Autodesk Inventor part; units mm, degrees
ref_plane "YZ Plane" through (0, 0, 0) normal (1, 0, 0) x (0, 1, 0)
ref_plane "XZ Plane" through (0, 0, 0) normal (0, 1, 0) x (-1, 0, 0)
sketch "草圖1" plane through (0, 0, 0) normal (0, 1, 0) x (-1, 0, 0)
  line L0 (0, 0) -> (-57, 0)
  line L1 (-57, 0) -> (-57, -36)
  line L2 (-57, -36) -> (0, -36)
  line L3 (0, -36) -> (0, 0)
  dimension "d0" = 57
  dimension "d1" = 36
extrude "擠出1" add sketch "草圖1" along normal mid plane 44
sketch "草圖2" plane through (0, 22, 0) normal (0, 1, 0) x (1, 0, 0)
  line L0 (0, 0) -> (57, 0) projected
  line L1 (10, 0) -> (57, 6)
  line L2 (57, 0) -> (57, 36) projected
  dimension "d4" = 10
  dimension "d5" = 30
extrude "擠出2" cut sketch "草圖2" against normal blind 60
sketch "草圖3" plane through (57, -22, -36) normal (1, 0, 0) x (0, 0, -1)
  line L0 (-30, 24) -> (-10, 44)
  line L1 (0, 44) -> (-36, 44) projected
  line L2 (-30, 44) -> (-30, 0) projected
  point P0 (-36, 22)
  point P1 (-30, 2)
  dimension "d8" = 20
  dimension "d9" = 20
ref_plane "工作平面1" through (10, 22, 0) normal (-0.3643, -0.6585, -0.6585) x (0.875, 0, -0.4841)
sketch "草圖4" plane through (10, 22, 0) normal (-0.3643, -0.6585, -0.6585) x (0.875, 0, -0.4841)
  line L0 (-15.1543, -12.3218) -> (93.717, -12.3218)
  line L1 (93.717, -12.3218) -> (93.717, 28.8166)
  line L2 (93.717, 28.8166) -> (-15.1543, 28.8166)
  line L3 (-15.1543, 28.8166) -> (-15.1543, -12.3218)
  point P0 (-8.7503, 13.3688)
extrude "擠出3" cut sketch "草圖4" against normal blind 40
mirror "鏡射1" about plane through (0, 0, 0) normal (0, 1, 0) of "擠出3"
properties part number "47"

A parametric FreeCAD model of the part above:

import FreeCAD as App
import Part
import Sketcher
from FreeCAD import Vector

doc = App.newDocument("Part")
body = doc.addObject("PartDesign::Body", "Body")

# Sketch on XZ plane
sketch1 = body.newObject("Sketcher::SketchObject", "Sketch")
sketch1.AttachmentSupport = (doc.getObject("XZ_Plane"), [""])
sketch1.MapMode = "FlatFace"
sketch1.addGeometry(Part.LineSegment(Vector(0, -36, 0), Vector(0, 0, 0)), False)
sketch1.addGeometry(Part.LineSegment(Vector(0, 0, 0), Vector(57, 0, 0)), False)
sketch1.addGeometry(Part.LineSegment(Vector(57, 0, 0), Vector(57, -36, 0)), False)
sketch1.addGeometry(Part.LineSegment(Vector(57, -36, 0), Vector(0, -36, 0)), False)
sketch1.addConstraint(Sketcher.Constraint("Coincident", 0, 2, 1, 1))
sketch1.addConstraint(Sketcher.Constraint("Coincident", 1, 2, 2, 1))
sketch1.addConstraint(Sketcher.Constraint("Coincident", 2, 2, 3, 1))
sketch1.addConstraint(Sketcher.Constraint("Coincident", 3, 2, 0, 1))
sketch1.addConstraint(Sketcher.Constraint("Vertical", 0))
sketch1.addConstraint(Sketcher.Constraint("Horizontal", 1))
sketch1.addConstraint(Sketcher.Constraint("Vertical", 2))
sketch1.addConstraint(Sketcher.Constraint("Horizontal", 3))
sketch1.addConstraint(Sketcher.Constraint("Coincident", 0, 2, -1, 1))
sketch1.addConstraint(Sketcher.Constraint("DistanceX", 1, 1, 1, 2, 57.0))
sketch1.addConstraint(Sketcher.Constraint("DistanceY", 0, 1, 0, 2, 36.0))
pad1 = body.newObject("PartDesign::Pad", "Pad")
pad1.Profile = sketch1
pad1.Length = 44
pad1.Midplane = True

# Sketch on XZ plane
sketch2 = body.newObject("Sketcher::SketchObject", "Sketch001")
sketch2.AttachmentSupport = (doc.getObject("XZ_Plane"), [""])
sketch2.MapMode = "FlatFace"
sketch2.AttachmentOffset = App.Placement(Vector(0, 0, -22), App.Rotation())
sketch2.addGeometry(Part.LineSegment(Vector(57, -6, 0), Vector(10, 0, 0)), False)
sketch2.addGeometry(Part.LineSegment(Vector(10, 0, 0), Vector(57, 0, 0)), False)
sketch2.addGeometry(Part.LineSegment(Vector(57, 0, 0), Vector(57, -6, 0)), False)
sketch2.addConstraint(Sketcher.Constraint("Coincident", 0, 2, 1, 1))
sketch2.addConstraint(Sketcher.Constraint("Coincident", 1, 2, 2, 1))
sketch2.addConstraint(Sketcher.Constraint("Coincident", 2, 2, 0, 1))
sketch2.addConstraint(Sketcher.Constraint("Horizontal", 1))
sketch2.addConstraint(Sketcher.Constraint("Vertical", 2))
sketch2.addConstraint(Sketcher.Constraint("PointOnObject", 0, 2, -1))
sketch2.addConstraint(Sketcher.Constraint("DistanceX", -1, 1, 0, 2, 10.0))
sketch2.addConstraint(Sketcher.Constraint("DistanceX", 1, 1, 1, 2, 47.0))
sketch2.addConstraint(Sketcher.Constraint("DistanceY", 2, 2, 2, 1, 6.0))
pocket1 = body.newObject("PartDesign::Pocket", "Pocket")
pocket1.Profile = sketch2
pocket1.Length = 60
pocket1.Reversed = True

# Sketch on an angled plane
sketch3 = body.newObject("Sketcher::SketchObject", "Sketch002")
sketch3.Placement = App.Placement(Vector(10, 22, 0), App.Rotation(Vector(0.875016029, 0.000011426, -0.484093946), Vector(0.318789924, -0.752568911, 0.576205708), Vector(-0.36430747, -0.658513503, -0.658513503), "ZXY"))
sketch3.addGeometry(Part.LineSegment(Vector(-15, 29, 0), Vector(-15, -12, 0)), False)
sketch3.addGeometry(Part.LineSegment(Vector(-15, -12, 0), Vector(94, -12, 0)), False)
sketch3.addGeometry(Part.LineSegment(Vector(94, -12, 0), Vector(94, 29, 0)), False)
sketch3.addGeometry(Part.LineSegment(Vector(94, 29, 0), Vector(-15, 29, 0)), False)
sketch3.addConstraint(Sketcher.Constraint("Coincident", 0, 2, 1, 1))
sketch3.addConstraint(Sketcher.Constraint("Coincident", 1, 2, 2, 1))
sketch3.addConstraint(Sketcher.Constraint("Coincident", 2, 2, 3, 1))
sketch3.addConstraint(Sketcher.Constraint("Coincident", 3, 2, 0, 1))
sketch3.addConstraint(Sketcher.Constraint("Vertical", 0))
sketch3.addConstraint(Sketcher.Constraint("Horizontal", 1))
sketch3.addConstraint(Sketcher.Constraint("Vertical", 2))
sketch3.addConstraint(Sketcher.Constraint("Horizontal", 3))
sketch3.addConstraint(Sketcher.Constraint("DistanceX", 1, 1, 1, 2, 108.8713))
sketch3.addConstraint(Sketcher.Constraint("DistanceY", 0, 2, 0, 1, 41.1384))
sketch3.addConstraint(Sketcher.Constraint("DistanceX", -1, 1, 1, 2, 93.717))
sketch3.addConstraint(Sketcher.Constraint("DistanceY", 0, 2, -1, 1, 12.3218))
pocket2 = body.newObject("PartDesign::Pocket", "Pocket001")
pocket2.Profile = sketch3
pocket2.Length = 40
doc.recompute()

mirrored = body.newObject("PartDesign::Mirrored", "Mirrored")
mirrored.Originals = [pocket2]
mirrored.MirrorPlane = (doc.getObject("XZ_Plane"), [""])
body.Tip = mirrored

doc.recompute()
